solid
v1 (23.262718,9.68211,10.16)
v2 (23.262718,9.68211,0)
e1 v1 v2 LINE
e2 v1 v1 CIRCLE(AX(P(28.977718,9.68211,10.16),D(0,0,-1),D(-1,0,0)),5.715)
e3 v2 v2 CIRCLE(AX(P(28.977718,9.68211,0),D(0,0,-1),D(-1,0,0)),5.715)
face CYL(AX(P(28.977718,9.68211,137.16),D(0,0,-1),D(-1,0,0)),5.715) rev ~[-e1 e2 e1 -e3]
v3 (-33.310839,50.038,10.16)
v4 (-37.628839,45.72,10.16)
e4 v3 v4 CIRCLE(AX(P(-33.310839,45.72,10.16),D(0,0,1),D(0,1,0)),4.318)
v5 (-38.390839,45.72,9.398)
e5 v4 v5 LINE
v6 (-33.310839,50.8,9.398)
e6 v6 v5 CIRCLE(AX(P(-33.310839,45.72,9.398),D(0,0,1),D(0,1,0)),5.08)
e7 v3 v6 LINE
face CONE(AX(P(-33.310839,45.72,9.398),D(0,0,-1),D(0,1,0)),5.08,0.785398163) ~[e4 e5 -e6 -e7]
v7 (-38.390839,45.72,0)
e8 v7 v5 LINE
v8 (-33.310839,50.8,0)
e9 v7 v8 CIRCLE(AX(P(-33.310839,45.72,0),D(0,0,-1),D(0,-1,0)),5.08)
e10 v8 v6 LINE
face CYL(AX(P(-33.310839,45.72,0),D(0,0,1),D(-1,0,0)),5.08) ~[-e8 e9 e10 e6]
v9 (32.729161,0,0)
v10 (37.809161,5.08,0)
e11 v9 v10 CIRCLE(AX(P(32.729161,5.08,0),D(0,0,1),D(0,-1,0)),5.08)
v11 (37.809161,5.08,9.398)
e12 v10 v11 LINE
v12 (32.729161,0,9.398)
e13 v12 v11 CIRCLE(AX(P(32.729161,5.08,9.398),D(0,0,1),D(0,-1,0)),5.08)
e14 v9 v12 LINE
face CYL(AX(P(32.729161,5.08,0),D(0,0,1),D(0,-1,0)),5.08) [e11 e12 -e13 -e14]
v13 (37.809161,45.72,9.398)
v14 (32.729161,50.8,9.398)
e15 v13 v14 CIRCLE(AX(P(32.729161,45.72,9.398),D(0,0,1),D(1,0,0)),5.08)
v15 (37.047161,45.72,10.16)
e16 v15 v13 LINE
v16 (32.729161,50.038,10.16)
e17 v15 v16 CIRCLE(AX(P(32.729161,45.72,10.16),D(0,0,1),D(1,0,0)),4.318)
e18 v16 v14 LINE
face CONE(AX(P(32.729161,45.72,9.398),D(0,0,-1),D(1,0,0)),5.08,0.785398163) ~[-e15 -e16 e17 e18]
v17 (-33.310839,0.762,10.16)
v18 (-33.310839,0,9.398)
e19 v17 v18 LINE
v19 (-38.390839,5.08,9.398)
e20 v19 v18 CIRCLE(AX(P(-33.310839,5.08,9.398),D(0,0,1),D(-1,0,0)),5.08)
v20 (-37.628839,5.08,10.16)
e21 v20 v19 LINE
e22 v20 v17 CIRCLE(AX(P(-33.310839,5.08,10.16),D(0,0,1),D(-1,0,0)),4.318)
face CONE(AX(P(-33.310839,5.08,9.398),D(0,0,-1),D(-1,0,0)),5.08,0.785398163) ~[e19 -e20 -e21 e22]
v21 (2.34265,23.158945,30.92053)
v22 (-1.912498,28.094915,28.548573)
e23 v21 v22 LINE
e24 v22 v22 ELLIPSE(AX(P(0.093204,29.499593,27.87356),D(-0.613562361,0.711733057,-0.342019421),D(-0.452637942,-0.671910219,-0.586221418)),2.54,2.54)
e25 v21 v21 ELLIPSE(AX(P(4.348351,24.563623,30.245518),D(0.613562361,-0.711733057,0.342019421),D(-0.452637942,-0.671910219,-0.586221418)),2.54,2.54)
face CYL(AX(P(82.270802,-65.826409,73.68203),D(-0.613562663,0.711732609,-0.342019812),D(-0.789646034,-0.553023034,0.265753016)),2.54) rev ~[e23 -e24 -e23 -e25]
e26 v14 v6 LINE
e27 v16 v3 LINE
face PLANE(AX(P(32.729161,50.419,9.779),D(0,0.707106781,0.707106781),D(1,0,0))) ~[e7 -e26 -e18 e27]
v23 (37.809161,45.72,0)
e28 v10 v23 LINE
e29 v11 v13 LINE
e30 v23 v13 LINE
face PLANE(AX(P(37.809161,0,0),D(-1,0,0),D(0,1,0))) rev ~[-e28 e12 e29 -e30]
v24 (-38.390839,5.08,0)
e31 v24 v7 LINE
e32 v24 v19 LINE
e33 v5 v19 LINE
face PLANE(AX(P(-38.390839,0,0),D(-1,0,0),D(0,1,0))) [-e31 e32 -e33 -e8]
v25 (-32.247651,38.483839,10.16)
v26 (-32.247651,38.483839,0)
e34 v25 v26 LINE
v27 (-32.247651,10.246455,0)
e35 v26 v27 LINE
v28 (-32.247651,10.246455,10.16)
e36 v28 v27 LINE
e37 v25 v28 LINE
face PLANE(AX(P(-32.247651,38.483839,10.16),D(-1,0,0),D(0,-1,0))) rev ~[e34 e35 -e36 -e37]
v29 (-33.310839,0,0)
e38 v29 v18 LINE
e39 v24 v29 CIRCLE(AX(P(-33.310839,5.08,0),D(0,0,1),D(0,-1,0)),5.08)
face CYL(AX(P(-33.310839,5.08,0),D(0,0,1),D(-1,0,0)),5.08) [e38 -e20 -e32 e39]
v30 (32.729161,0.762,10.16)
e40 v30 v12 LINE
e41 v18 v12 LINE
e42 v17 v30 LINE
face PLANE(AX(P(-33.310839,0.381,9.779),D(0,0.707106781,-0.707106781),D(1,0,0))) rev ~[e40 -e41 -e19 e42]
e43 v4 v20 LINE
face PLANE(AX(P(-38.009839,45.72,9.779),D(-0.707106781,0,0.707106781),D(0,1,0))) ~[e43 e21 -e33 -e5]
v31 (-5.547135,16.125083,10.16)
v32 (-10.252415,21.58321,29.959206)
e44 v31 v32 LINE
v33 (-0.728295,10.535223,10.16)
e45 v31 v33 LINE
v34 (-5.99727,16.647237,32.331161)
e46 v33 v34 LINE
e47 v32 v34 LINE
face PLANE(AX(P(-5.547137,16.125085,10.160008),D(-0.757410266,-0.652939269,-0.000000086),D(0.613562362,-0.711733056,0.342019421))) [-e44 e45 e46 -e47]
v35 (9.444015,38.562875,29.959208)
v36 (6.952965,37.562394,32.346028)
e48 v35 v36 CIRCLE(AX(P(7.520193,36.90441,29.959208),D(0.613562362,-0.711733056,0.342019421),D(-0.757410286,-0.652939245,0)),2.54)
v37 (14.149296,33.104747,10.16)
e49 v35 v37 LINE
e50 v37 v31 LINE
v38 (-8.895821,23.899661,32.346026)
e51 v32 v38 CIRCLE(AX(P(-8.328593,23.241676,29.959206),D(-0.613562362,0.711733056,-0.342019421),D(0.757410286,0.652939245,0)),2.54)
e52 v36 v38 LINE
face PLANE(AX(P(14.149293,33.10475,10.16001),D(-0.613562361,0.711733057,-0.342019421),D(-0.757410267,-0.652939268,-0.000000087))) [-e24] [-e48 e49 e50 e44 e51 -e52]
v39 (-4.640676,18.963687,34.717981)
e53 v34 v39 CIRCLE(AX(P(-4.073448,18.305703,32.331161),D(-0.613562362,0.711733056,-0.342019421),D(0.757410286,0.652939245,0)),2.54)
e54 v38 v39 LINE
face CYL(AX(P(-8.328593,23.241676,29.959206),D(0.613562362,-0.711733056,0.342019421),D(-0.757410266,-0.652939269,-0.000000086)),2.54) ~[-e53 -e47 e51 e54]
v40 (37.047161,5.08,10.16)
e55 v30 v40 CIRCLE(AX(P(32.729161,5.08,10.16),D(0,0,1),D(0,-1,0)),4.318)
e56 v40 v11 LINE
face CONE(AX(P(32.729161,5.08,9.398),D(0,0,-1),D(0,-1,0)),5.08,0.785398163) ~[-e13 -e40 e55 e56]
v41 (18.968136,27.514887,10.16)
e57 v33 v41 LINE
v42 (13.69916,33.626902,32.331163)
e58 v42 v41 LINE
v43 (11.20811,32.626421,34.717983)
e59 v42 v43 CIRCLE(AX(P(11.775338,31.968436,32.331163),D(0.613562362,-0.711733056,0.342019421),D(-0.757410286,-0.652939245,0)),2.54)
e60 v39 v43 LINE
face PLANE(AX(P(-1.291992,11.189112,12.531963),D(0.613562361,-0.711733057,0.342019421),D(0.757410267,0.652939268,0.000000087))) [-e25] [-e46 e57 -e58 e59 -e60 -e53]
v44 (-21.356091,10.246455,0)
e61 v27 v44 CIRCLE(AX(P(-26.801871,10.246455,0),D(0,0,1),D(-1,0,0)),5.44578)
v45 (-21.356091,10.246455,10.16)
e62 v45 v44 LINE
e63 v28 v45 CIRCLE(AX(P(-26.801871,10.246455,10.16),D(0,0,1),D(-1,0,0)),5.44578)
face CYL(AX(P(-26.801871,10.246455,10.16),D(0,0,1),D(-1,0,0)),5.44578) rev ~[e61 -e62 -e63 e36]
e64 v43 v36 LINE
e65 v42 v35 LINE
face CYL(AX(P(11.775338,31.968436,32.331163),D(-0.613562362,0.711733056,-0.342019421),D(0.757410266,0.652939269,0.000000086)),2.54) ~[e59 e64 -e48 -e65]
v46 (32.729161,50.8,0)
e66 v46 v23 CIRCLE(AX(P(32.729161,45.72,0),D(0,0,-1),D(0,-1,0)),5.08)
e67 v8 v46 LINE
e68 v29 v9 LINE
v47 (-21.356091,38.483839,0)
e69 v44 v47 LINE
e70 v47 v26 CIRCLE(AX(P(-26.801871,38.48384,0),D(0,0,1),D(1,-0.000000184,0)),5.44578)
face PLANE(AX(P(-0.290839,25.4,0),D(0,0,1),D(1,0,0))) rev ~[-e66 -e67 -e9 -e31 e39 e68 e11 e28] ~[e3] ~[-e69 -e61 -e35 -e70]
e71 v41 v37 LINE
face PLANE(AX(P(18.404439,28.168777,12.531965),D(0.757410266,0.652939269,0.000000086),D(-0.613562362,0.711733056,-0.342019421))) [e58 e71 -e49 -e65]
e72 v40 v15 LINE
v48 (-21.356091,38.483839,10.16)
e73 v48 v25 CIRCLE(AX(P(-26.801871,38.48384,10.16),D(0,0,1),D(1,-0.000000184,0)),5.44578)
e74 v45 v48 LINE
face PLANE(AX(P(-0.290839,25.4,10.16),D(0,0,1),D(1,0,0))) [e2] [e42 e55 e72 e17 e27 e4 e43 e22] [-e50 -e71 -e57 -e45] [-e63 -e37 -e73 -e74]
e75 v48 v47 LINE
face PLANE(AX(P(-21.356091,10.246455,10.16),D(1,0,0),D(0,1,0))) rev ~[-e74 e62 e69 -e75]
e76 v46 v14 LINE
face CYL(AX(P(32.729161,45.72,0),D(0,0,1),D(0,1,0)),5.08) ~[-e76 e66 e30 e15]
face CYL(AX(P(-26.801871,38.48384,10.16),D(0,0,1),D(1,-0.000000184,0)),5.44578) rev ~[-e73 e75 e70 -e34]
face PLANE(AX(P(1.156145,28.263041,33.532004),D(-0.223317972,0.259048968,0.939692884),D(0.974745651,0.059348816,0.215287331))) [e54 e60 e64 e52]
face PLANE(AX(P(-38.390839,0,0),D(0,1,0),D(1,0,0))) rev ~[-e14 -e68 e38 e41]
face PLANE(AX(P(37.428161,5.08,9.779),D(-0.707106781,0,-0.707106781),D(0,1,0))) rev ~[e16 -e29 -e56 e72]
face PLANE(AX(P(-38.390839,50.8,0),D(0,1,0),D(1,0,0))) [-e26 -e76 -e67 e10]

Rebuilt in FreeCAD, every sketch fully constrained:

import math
import FreeCAD as App
import Part
import Sketcher

V = App.Vector
Q = App.Units.Quantity


def edges_at(feature, points):
    """Names of the edges that pass closest to the given points."""
    edges = feature.Shape.Edges
    near = lambda p: min(range(len(edges)), key=lambda i: edges[i].distToShape(Part.Vertex(*p))[0])
    return sorted({f"Edge{near(p) + 1}" for p in points})

doc = App.newDocument("Part")
body = doc.addObject("PartDesign::Body", "Body")

# Sketch on XY plane
sketch1 = body.newObject("Sketcher::SketchObject", "Sketch")
sketch1.AttachmentSupport = (doc.getObject("XY_Plane"), [""])
sketch1.MapMode = "FlatFace"
sketch1.addGeometry(Part.LineSegment(V(-38, 51, 0), V(-38, 0, 0)), False)
sketch1.addGeometry(Part.LineSegment(V(-38, 0, 0), V(38, 0, 0)), False)
sketch1.addGeometry(Part.LineSegment(V(38, 0, 0), V(38, 51, 0)), False)
sketch1.addGeometry(Part.LineSegment(V(38, 51, 0), V(-38, 51, 0)), False)
sketch1.addConstraint(Sketcher.Constraint("Coincident", 0, 2, 1, 1))
sketch1.addConstraint(Sketcher.Constraint("Coincident", 1, 2, 2, 1))
sketch1.addConstraint(Sketcher.Constraint("Coincident", 2, 2, 3, 1))
sketch1.addConstraint(Sketcher.Constraint("Coincident", 3, 2, 0, 1))
sketch1.addConstraint(Sketcher.Constraint("Vertical", 0))
sketch1.addConstraint(Sketcher.Constraint("Horizontal", 1))
sketch1.addConstraint(Sketcher.Constraint("Vertical", 2))
sketch1.addConstraint(Sketcher.Constraint("Horizontal", 3))
sketch1.addConstraint(Sketcher.Constraint("PointOnObject", 0, 2, -1))
sketch1.addConstraint(Sketcher.Constraint("DistanceX", 1, 1, 1, 2, Q("3 in")))
sketch1.addConstraint(Sketcher.Constraint("DistanceY", 0, 2, 0, 1, Q("2 in")))
sketch1.addConstraint(Sketcher.Constraint("DistanceX", 0, 2, -1, 1, 38.390839))
pad1 = body.newObject("PartDesign::Pad", "Pad")
pad1.Profile = sketch1
pad1.Length = Q("0.4 in")

# Sketch on an angled plane
sketch2 = body.newObject("Sketcher::SketchObject", "Sketch001")
sketch2.Placement = App.Placement(V(-3.34157, 3.876222, 14.060855), App.Rotation(V(0.974745651, 0.059348816, 0.215287331), V(0.000000301, 0.964039082, -0.265760512), V(-0.223317972, 0.259048968, 0.939692884), "ZXY"))
sketch2.addGeometry(Part.LineSegment(V(18, 29, 0), V(-2, 13, 0)), False)
sketch2.addGeometry(Part.LineSegment(V(-2, 13, 0), V(2, 7, 0)), False)
sketch2.addGeometry(Part.LineSegment(V(2, 7, 0), V(22, 24, 0)), False)
sketch2.addGeometry(Part.LineSegment(V(22, 24, 0), V(18, 29, 0)), False)
sketch2.addConstraint(Sketcher.Constraint("Coincident", 0, 2, 1, 1))
sketch2.addConstraint(Sketcher.Constraint("Coincident", 1, 2, 2, 1))
sketch2.addConstraint(Sketcher.Constraint("Coincident", 2, 2, 3, 1))
sketch2.addConstraint(Sketcher.Constraint("Coincident", 3, 2, 0, 1))
sketch2.addConstraint(Sketcher.Constraint("Perpendicular", 0, 1))
sketch2.addConstraint(Sketcher.Constraint("Perpendicular", 1, 2))
sketch2.addConstraint(Sketcher.Constraint("Perpendicular", 2, 3))
sketch2.addConstraint(Sketcher.Constraint("Distance", 0, 26.004968))
sketch2.addConstraint(Sketcher.Constraint("DistanceX", -1, 1, 1, 2, 2.102678))
sketch2.addConstraint(Sketcher.Constraint("DistanceY", -1, 1, 1, 2, 7.456231))
sketch2.addConstraint(Sketcher.Constraint("DistanceX", -1, 1, 2, 2, 22.309411))
sketch2.addConstraint(Sketcher.Constraint("DistanceX", -1, 1, 3, 2, 17.944019))
pad2 = body.newObject("PartDesign::Pad", "Pad001")
pad2.Profile = sketch2
pad2.Type = "TwoLengths"
pad2.Length = 23.60986
pad2.Length2 = 6.00945

# Sketch on XY plane
sketch3 = body.newObject("Sketcher::SketchObject", "Sketch002")
sketch3.AttachmentSupport = (doc.getObject("XY_Plane"), [""])
sketch3.MapMode = "FlatFace"
sketch3.AttachmentOffset = App.Placement(V(0, 0, 0.4 * 25.4), App.Rotation())
sketch3.addGeometry(Part.ArcOfCircle(Part.Circle(V(-27, 38, 0), V(0, 0, 1), 5), math.radians(0), math.radians(180)), False)
sketch3.addGeometry(Part.LineSegment(V(-32, 38, 0), V(-32, 10, 0)), False)
sketch3.addGeometry(Part.ArcOfCircle(Part.Circle(V(-27, 10, 0), V(0, 0, 1), 5), math.radians(180), math.radians(360)), False)
sketch3.addGeometry(Part.LineSegment(V(-21, 10, 0), V(-21, 38, 0)), False)
sketch3.addConstraint(Sketcher.Constraint("Tangent", 0, 2, 1, 1))
sketch3.addConstraint(Sketcher.Constraint("Tangent", 1, 2, 2, 1))
sketch3.addConstraint(Sketcher.Constraint("Tangent", 2, 2, 3, 1))
sketch3.addConstraint(Sketcher.Constraint("Tangent", 3, 2, 0, 1))
sketch3.addConstraint(Sketcher.Constraint("Vertical", 1))
sketch3.addConstraint(Sketcher.Constraint("Vertical", 3))
sketch3.addConstraint(Sketcher.Constraint("Radius", 0, 5.44578))
sketch3.addConstraint(Sketcher.Constraint("DistanceY", 1, 2, 1, 1, 28.237384))
sketch3.addConstraint(Sketcher.Constraint("DistanceX", 0, 3, -1, 1, 26.801871))
sketch3.addConstraint(Sketcher.Constraint("DistanceY", -1, 1, 0, 3, 38.48384))
pocket1 = body.newObject("PartDesign::Pocket", "Pocket")
pocket1.Profile = sketch3
pocket1.Length = Q("1 in")

# Sketch on XY plane
sketch4 = body.newObject("Sketcher::SketchObject", "Sketch003")
sketch4.AttachmentSupport = (doc.getObject("XY_Plane"), [""])
sketch4.MapMode = "FlatFace"
sketch4.AttachmentOffset = App.Placement(V(0, 0, 0.4 * 25.4), App.Rotation())
sketch4.addGeometry(Part.Circle(V(29, 10, 0), V(0, 0, 1), 6), False)
sketch4.addConstraint(Sketcher.Constraint("Diameter", 0, Q("0.45 in")))
sketch4.addConstraint(Sketcher.Constraint("DistanceY", -1, 1, 0, 3, 9.68211))
sketch4.addConstraint(Sketcher.Constraint("DistanceX", -1, 1, 0, 3, 28.977718))
doc.recompute()
hole = body.newObject("PartDesign::Hole", "Hole")
hole.Profile = sketch4
hole.ThreadType = "None"
hole.Diameter = Q("0.45 in")
hole.DepthType = "Dimension"
hole.Depth = Q("5 in")
hole.DrillPoint = "Flat"

# Sketch on an angled plane
sketch5 = body.newObject("Sketcher::SketchObject", "Sketch004")
sketch5.Placement = App.Placement(V(-2.742743, 3.181581, -1.528894), App.Rotation(V(0.789646034, 0.553023034, -0.265753016), V(0.000000253, 0.433130716, 0.901331117), V(0.613562663, -0.711732609, 0.342019812), "ZXY"))
sketch5.addGeometry(Part.Circle(V(9, 37.9, 0), V(0, 0, 1), 2.5), False)
sketch5.addConstraint(Sketcher.Constraint("Diameter", 0, Q("0.2 in")))
sketch5.addConstraint(Sketcher.Constraint("DistanceX", -1, 1, 0, 3, 8.98007))
sketch5.addConstraint(Sketcher.Constraint("DistanceY", -1, 1, 0, 3, 37.900487))
doc.recompute()
hole2 = body.newObject("PartDesign::Hole", "Hole001")
hole2.Profile = sketch5
hole2.ThreadType = "None"
hole2.Diameter = Q("0.2 in")
hole2.DepthType = "Dimension"
hole2.Depth = Q("5 in")
hole2.DrillPoint = "Flat"
doc.recompute()

fillet = body.newObject("PartDesign::Fillet", "Fillet")
fillet.Base = (hole2, edges_at(hole2, [
    (37.809, 0, 5.08),
    (37.809, 50.8, 5.08),
    (-38.391, 50.8, 5.08),
    (-38.391, 0, 5.08),
]))
fillet.Radius = Q("0.2 in")
doc.recompute()

chamfer = body.newObject("PartDesign::Chamfer", "Chamfer")
chamfer.Base = (fillet, edges_at(fillet, [(-0.291, 0, 10.16)]))
chamfer.Size = Q("0.03 in")
doc.recompute()

fillet2 = body.newObject("PartDesign::Fillet", "Fillet001")
fillet2.Base = (chamfer, edges_at(chamfer, [(-8.692, 19.773, 33.532), (11.004, 36.753, 33.532)]))
fillet2.Radius = Q("0.1 in")

doc.recompute()
